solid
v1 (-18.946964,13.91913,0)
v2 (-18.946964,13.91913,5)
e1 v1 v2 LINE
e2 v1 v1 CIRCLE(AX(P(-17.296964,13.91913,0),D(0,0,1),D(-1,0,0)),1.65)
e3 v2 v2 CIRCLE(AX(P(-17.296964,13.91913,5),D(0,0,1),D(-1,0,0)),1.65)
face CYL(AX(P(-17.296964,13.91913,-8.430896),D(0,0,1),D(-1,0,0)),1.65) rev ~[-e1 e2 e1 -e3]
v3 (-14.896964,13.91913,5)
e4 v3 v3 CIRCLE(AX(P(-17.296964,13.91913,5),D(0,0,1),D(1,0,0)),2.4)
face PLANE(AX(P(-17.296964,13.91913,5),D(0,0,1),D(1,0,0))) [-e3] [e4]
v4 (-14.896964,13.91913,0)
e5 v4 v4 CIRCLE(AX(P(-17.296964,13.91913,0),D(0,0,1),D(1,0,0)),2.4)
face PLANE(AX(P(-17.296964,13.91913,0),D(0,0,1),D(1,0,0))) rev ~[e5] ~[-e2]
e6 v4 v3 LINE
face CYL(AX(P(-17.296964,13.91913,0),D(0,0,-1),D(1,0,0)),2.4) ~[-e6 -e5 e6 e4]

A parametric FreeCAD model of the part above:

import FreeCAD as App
import Part
import Sketcher
from FreeCAD import Vector

doc = App.newDocument("Part")
body = doc.addObject("PartDesign::Body", "Body")

# Sketch on XY plane
sketch1 = body.newObject("Sketcher::SketchObject", "Sketch")
sketch1.AttachmentSupport = (doc.getObject("XY_Plane"), [""])
sketch1.MapMode = "FlatFace"
sketch1.addGeometry(Part.Circle(Vector(-17.296964, 13.91913, 0), Vector(0, 0, 1), 2.4), False)
sketch1.addConstraint([
    Sketcher.Constraint("Diameter", 0, 4.8),
    Sketcher.Constraint("DistanceY", -1, 1, 0, 3, 13.91913),
    Sketcher.Constraint("DistanceX", 0, 3, -1, 1, 17.296964),
])
pad1 = body.newObject("PartDesign::Pad", "Pad")
pad1.Profile = sketch1
pad1.Length = 5

# Sketch on XY plane
sketch2 = body.newObject("Sketcher::SketchObject", "Sketch001")
sketch2.AttachmentSupport = (doc.getObject("XY_Plane"), [""])
sketch2.MapMode = "FlatFace"
sketch2.addGeometry(Part.Circle(Vector(-17.296964, 13.91913, 0), Vector(0, 0, 1), 1.65), False)
sketch2.addConstraint([
    Sketcher.Constraint("Diameter", 0, 3.3),
    Sketcher.Constraint("DistanceY", -1, 1, 0, 3, 13.91913),
    Sketcher.Constraint("DistanceX", 0, 3, -1, 1, 17.296964),
])
doc.recompute()
hole = body.newObject("PartDesign::Hole", "Hole")
hole.Profile = sketch2
hole.ThreadType = "None"
hole.Diameter = 3.3
hole.DepthType = "ThroughAll"
hole.Reversed = True

doc.recompute()
